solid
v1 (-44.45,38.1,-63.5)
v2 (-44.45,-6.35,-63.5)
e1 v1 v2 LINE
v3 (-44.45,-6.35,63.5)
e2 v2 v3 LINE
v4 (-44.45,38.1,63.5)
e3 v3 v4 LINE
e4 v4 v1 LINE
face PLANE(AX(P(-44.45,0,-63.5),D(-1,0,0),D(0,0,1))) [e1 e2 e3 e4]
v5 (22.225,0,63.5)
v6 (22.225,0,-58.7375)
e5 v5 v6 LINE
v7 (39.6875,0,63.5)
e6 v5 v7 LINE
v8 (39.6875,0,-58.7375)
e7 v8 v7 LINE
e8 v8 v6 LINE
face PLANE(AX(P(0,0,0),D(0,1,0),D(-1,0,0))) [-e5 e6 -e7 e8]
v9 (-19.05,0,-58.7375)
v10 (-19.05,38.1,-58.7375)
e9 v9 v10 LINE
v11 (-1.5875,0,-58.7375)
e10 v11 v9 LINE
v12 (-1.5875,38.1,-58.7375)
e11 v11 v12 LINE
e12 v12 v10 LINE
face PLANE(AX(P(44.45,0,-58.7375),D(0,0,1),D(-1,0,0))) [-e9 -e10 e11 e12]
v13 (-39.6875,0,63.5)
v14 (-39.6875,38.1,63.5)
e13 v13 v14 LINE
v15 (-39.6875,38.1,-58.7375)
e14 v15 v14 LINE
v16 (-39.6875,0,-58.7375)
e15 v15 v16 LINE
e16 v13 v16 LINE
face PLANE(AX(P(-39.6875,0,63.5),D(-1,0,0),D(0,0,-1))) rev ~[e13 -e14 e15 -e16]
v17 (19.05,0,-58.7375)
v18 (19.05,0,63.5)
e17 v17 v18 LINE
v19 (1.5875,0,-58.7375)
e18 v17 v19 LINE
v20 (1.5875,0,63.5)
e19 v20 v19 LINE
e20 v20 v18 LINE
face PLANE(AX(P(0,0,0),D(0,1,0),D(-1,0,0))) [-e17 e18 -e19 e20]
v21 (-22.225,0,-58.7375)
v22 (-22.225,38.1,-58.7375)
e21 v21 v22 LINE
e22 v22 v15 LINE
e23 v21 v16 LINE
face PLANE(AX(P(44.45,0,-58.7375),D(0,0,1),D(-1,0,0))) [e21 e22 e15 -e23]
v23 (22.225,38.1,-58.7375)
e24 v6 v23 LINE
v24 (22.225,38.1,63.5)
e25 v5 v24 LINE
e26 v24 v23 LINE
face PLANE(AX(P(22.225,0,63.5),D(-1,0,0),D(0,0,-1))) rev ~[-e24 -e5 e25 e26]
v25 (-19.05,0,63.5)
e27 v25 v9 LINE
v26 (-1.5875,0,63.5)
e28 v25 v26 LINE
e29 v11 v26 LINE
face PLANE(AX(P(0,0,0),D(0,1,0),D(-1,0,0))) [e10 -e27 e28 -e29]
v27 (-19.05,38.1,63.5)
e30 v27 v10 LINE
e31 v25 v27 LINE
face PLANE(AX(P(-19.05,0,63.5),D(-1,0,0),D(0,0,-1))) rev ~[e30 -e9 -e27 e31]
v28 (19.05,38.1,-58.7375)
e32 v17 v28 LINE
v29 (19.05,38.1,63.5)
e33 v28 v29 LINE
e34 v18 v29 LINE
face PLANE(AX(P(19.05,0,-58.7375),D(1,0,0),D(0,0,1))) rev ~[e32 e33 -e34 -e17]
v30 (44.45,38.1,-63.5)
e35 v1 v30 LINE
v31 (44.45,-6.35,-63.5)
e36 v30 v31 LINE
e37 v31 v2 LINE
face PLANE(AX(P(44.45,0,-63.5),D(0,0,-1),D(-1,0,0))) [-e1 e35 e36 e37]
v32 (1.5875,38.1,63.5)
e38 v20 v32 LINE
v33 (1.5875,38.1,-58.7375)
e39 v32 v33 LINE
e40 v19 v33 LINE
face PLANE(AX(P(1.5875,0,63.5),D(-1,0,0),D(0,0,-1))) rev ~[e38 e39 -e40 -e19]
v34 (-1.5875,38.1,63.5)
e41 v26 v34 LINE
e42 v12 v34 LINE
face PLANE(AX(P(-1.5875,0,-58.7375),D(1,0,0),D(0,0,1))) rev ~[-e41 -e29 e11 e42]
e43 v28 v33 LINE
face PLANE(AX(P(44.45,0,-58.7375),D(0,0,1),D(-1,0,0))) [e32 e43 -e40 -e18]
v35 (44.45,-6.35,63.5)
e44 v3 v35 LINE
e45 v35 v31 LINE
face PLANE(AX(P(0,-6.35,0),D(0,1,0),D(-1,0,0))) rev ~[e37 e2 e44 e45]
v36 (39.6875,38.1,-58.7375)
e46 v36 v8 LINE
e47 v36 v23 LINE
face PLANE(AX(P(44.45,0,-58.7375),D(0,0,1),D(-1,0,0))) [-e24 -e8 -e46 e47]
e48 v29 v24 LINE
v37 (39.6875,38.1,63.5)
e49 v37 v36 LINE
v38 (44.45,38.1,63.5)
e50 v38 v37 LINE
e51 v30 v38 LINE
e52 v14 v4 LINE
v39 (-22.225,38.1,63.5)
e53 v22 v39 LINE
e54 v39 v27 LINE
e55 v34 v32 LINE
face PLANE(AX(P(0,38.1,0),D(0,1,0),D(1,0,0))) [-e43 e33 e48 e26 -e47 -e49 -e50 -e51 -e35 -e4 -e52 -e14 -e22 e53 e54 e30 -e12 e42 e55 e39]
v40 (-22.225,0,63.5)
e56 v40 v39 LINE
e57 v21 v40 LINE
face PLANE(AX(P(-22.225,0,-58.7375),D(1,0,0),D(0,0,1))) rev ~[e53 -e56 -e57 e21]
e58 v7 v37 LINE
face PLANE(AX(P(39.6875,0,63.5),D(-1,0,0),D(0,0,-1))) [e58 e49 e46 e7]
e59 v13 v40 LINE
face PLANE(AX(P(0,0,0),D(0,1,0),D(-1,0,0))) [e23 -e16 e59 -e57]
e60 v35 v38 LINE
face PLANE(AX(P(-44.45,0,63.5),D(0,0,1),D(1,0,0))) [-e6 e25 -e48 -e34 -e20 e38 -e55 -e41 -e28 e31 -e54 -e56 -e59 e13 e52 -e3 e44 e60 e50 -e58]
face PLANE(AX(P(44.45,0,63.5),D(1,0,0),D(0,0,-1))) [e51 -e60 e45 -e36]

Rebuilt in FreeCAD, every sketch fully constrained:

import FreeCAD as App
import Part
import Sketcher
from FreeCAD import Vector
Q = App.Units.Quantity


def add_polygon(sketch, points):
    """Adds a closed chain of lines whose ends are joined by coincident constraints."""
    first, n = sketch.GeometryCount, len(points)
    for a, b in zip(points, points[1:] + points[:1]):
        sketch.addGeometry(Part.LineSegment(App.Vector(*a, 0), App.Vector(*b, 0)), False)
    for i in range(n):
        sketch.addConstraint(Sketcher.Constraint("Coincident", first + i, 2, first + (i + 1) % n, 1))

doc = App.newDocument("Part")
body = doc.addObject("PartDesign::Body", "Body")

sketch1 = doc.addObject("Sketcher::SketchObject", "Sketch")
body.addObject(sketch1)
sketch1.AttachmentSupport = (doc.XZ_Plane, [""])
sketch1.MapMode = "FlatFace"
add_polygon(sketch1, [(-44, -64), (-44, 64), (44, 64), (44, -64)])
sketch1.addConstraint([
    Sketcher.Constraint("Vertical", 0),
    Sketcher.Constraint("Horizontal", 1),
    Sketcher.Constraint("Vertical", 2),
    Sketcher.Constraint("Horizontal", 3),
    Sketcher.Constraint("Symmetric", 0, 2, 2, 2, -1, 1),
    Sketcher.Constraint("DistanceY", 0, 1, 0, 2, Q("5 in")),
    Sketcher.Constraint("DistanceX", 1, 1, 1, 2, Q("3.5 in")),
])
pad1 = doc.addObject("PartDesign::Pad", "Pad")
body.addObject(pad1)
pad1.Profile = sketch1
pad1.Length = Q("0.25 in")

sketch2 = doc.addObject("Sketcher::SketchObject", "Sketch001")
body.addObject(sketch2)
sketch2.AttachmentSupport = (doc.XZ_Plane, [""])
sketch2.MapMode = "FlatFace"
add_polygon(sketch2, [(-44.5, -63.5), (-44.5, -58.7), (44.5, -58.7), (44.5, -63.5)])
sketch2.addConstraint([
    Sketcher.Constraint("Vertical", 0),
    Sketcher.Constraint("Horizontal", 1),
    Sketcher.Constraint("Vertical", 2),
    Sketcher.Constraint("Horizontal", 3),
    Sketcher.Constraint("DistanceY", 0, 1, 0, 2, Q("0.1875 in")),
    Sketcher.Constraint("DistanceX", 1, 1, 1, 2, Q("3.5 in")),
    Sketcher.Constraint("DistanceY", 2, 2, -1, 1, Q("2.5 in")),
    Sketcher.Constraint("DistanceX", 0, 2, -1, 1, Q("1.75 in")),
])
pad2 = doc.addObject("PartDesign::Pad", "Pad001")
body.addObject(pad2)
pad2.Profile = sketch2
pad2.Length = Q("1.5 in")
pad2.Reversed = True

sketch3 = doc.addObject("Sketcher::SketchObject", "Sketch002")
body.addObject(sketch3)
sketch3.AttachmentSupport = (doc.XZ_Plane, [""])
sketch3.MapMode = "FlatFace"
add_polygon(sketch3, [(39.7, 63.5), (44.5, 63.5), (44.5, -63.5), (39.7, -63.5)])
add_polygon(sketch3, [(-44.5, 63.5), (-39.7, 63.5), (-39.7, -63.5), (-44.5, -63.5)])
sketch3.addConstraint([
    Sketcher.Constraint("Horizontal", 0),
    Sketcher.Constraint("Vertical", 1),
    Sketcher.Constraint("Horizontal", 2),
    Sketcher.Constraint("Vertical", 3),
    Sketcher.Constraint("Horizontal", 4),
    Sketcher.Constraint("Vertical", 5),
    Sketcher.Constraint("Horizontal", 6),
    Sketcher.Constraint("Vertical", 7),
    Sketcher.Constraint("Symmetric", 2, 2, 4, 2, -1, 1),
    Sketcher.Constraint("Symmetric", 0, 2, 6, 2, -1, 1),
    Sketcher.Constraint("Horizontal", 3, 2, 4, 2),
    Sketcher.Constraint("DistanceX", 0, 1, 0, 2, Q("0.1875 in")),
    Sketcher.Constraint("DistanceY", 1, 2, 1, 1, Q("5 in")),
    Sketcher.Constraint("DistanceX", 6, 2, 1, 2, Q("3.5 in")),
])
pad3 = doc.addObject("PartDesign::Pad", "Pad002")
body.addObject(pad3)
pad3.Profile = sketch3
pad3.Length = Q("1.5 in")
pad3.Reversed = True

sketch4 = doc.addObject("Sketcher::SketchObject", "Sketch003")
body.addObject(sketch4)
sketch4.AttachmentSupport = (doc.XZ_Plane, [""])
sketch4.MapMode = "FlatFace"
add_polygon(sketch4, [(-22.2, -58.7), (-22.2, 63.5), (-19.1, 63.5), (-19.1, -58.7)])
add_polygon(sketch4, [(-1.6, -58.7), (-1.6, 63.5), (1.6, 63.5), (1.6, -58.7)])
add_polygon(sketch4, [(19.1, -58.7), (19.1, 63.5), (22.2, 63.5), (22.2, -58.7)])
sketch4.addConstraint([
    Sketcher.Constraint("Vertical", 0),
    Sketcher.Constraint("Horizontal", 1),
    Sketcher.Constraint("Vertical", 2),
    Sketcher.Constraint("Horizontal", 3),
    Sketcher.Constraint("Vertical", 4),
    Sketcher.Constraint("Horizontal", 5),
    Sketcher.Constraint("Vertical", 6),
    Sketcher.Constraint("Horizontal", 7),
    Sketcher.Constraint("Vertical", 8),
    Sketcher.Constraint("Horizontal", 9),
    Sketcher.Constraint("Vertical", 10),
    Sketcher.Constraint("Horizontal", 11),
    Sketcher.Constraint("Symmetric", 1, 2, 8, 2, -2),
    Sketcher.Constraint("Symmetric", 3, 2, 10, 2, -2),
    Sketcher.Constraint("Horizontal", 1, 2, 4, 2),
    Sketcher.Constraint("Horizontal", 3, 2, 6, 2),
    Sketcher.Constraint("Equal", 3, 5),
    Sketcher.Constraint("DistanceX", 1, 1, 1, 2, Q("0.125 in")),
    Sketcher.Constraint("DistanceX", 1, 2, 4, 2, Q("0.6875 in")),
    Sketcher.Constraint("DistanceX", 5, 2, 8, 2, Q("0.6875 in")),
    Sketcher.Constraint("DistanceY", -1, 1, 0, 2, Q("2.5 in")),
    Sketcher.Constraint("DistanceY", 0, 1, 0, 2, Q("4.8125 in")),
])
pad4 = doc.addObject("PartDesign::Pad", "Pad003")
body.addObject(pad4)
pad4.Profile = sketch4
pad4.Length = Q("1.5 in")
pad4.Reversed = True

doc.recompute()
